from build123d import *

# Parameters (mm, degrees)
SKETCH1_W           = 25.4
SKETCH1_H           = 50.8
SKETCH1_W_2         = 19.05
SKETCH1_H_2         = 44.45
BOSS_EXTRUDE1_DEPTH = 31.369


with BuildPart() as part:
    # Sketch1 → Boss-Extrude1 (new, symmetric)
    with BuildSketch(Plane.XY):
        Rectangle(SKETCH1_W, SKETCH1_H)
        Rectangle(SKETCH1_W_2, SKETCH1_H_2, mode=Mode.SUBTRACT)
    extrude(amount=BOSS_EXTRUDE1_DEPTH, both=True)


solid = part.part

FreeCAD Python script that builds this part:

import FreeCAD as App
import Part
import Sketcher
Q = App.Units.Quantity

doc = App.newDocument("Part")
body = doc.addObject("PartDesign::Body", "Body")

# Sketch on XY plane
sketch1 = body.newObject("Sketcher::SketchObject", "Sketch")
sketch1.AttachmentSupport = (doc.getObject("XY_Plane"), [""])
sketch1.MapMode = "FlatFace"
sketch1.addGeometry(Part.LineSegment(App.Vector(-13, 25, 0), App.Vector(-13, -25, 0)), False)
sketch1.addGeometry(Part.LineSegment(App.Vector(-13, -25, 0), App.Vector(13, -25, 0)), False)
sketch1.addGeometry(Part.LineSegment(App.Vector(13, -25, 0), App.Vector(13, 25, 0)), False)
sketch1.addGeometry(Part.LineSegment(App.Vector(13, 25, 0), App.Vector(-13, 25, 0)), False)
sketch1.addGeometry(Part.LineSegment(App.Vector(10, -22, 0), App.Vector(-10, -22, 0)), False)
sketch1.addGeometry(Part.LineSegment(App.Vector(-10, -22, 0), App.Vector(-10, 22, 0)), False)
sketch1.addGeometry(Part.LineSegment(App.Vector(-10, 22, 0), App.Vector(10, 22, 0)), False)
sketch1.addGeometry(Part.LineSegment(App.Vector(10, 22, 0), App.Vector(10, -22, 0)), False)
sketch1.addConstraint(Sketcher.Constraint("Coincident", 0, 2, 1, 1))
sketch1.addConstraint(Sketcher.Constraint("Coincident", 1, 2, 2, 1))
sketch1.addConstraint(Sketcher.Constraint("Coincident", 2, 2, 3, 1))
sketch1.addConstraint(Sketcher.Constraint("Coincident", 3, 2, 0, 1))
sketch1.addConstraint(Sketcher.Constraint("Coincident", 4, 2, 5, 1))
sketch1.addConstraint(Sketcher.Constraint("Coincident", 5, 2, 6, 1))
sketch1.addConstraint(Sketcher.Constraint("Coincident", 6, 2, 7, 1))
sketch1.addConstraint(Sketcher.Constraint("Coincident", 7, 2, 4, 1))
sketch1.addConstraint(Sketcher.Constraint("Vertical", 0))
sketch1.addConstraint(Sketcher.Constraint("Horizontal", 1))
sketch1.addConstraint(Sketcher.Constraint("Vertical", 2))
sketch1.addConstraint(Sketcher.Constraint("Horizontal", 3))
sketch1.addConstraint(Sketcher.Constraint("Horizontal", 4))
sketch1.addConstraint(Sketcher.Constraint("Vertical", 5))
sketch1.addConstraint(Sketcher.Constraint("Horizontal", 6))
sketch1.addConstraint(Sketcher.Constraint("Vertical", 7))
sketch1.addConstraint(Sketcher.Constraint("Symmetric", 0, 2, 2, 2, -1, 1))
sketch1.addConstraint(Sketcher.Constraint("Symmetric", 4, 2, 6, 2, -1, 1))
sketch1.addConstraint(Sketcher.Constraint("DistanceX", 1, 1, 1, 2, Q("1 in")))
sketch1.addConstraint(Sketcher.Constraint("DistanceY", 0, 2, 0, 1, Q("2 in")))
sketch1.addConstraint(Sketcher.Constraint("DistanceX", 4, 2, 4, 1, Q("0.75 in")))
sketch1.addConstraint(Sketcher.Constraint("DistanceY", 5, 1, 5, 2, Q("1.75 in")))
pad1 = body.newObject("PartDesign::Pad", "Pad")
pad1.Profile = sketch1
pad1.Length = Q("2.47 in")
pad1.Midplane = True

doc.recompute()
